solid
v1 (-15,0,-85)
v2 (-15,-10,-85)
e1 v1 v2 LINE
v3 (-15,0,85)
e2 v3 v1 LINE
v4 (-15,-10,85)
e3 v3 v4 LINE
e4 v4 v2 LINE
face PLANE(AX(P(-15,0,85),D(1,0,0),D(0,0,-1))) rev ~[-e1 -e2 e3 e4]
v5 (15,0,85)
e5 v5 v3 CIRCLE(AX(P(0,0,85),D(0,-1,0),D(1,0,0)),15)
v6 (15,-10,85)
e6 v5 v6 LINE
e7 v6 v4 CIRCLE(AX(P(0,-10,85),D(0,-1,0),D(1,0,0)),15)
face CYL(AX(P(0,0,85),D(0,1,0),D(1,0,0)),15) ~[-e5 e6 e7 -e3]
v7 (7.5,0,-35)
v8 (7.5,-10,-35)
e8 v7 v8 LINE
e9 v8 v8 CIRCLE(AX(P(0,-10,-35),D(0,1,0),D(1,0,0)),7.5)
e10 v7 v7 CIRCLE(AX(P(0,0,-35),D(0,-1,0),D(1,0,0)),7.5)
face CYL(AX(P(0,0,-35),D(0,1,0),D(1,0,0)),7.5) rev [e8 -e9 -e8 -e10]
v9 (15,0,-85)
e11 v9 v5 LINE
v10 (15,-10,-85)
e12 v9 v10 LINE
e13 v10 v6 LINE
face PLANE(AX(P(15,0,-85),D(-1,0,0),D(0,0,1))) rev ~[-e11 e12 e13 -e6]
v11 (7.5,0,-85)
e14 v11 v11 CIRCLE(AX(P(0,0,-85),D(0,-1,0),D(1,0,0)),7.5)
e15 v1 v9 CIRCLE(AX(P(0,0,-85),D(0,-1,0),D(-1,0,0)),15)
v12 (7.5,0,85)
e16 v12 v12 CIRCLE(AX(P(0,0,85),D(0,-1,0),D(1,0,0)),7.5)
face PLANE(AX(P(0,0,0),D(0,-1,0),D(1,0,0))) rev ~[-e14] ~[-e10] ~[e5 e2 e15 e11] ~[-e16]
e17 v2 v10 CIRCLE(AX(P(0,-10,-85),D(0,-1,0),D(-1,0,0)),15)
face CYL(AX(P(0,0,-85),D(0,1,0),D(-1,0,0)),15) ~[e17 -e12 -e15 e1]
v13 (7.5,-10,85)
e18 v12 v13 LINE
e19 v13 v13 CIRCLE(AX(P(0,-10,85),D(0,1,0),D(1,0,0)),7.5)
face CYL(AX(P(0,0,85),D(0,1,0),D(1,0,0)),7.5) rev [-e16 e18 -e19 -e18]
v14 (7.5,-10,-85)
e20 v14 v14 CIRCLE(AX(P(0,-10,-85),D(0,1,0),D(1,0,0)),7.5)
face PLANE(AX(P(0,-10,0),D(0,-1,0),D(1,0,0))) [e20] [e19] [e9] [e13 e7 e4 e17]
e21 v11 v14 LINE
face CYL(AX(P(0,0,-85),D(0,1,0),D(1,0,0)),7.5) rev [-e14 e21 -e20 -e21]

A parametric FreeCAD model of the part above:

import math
import FreeCAD as App
import Part
import Sketcher
from FreeCAD import Vector

doc = App.newDocument("Part")
params = doc.addObject("Spreadsheet::Sheet", "Params")
for row, (alias, value) in enumerate([
    ("sketch1_radius", "15 mm"),
    ("sketch1_height", "170 mm"),
    ("pad1_length", "10 mm"),
    ("sketch2_diameter", "15 mm"),
    ("pocket1_length", "51 mm"),
], start=1):
    params.set(f"A{row}", alias)
    params.set(f"B{row}", "=" + value)
    params.setAlias(f"B{row}", alias)

body = doc.addObject("PartDesign::Body", "Body")

# Sketch on XZ plane
sketch1 = body.newObject("Sketcher::SketchObject", "Sketch")
sketch1.AttachmentSupport = (doc.getObject("XZ_Plane"), [""])
sketch1.MapMode = "FlatFace"
sketch1.addGeometry([
    Part.LineSegment(Vector(15, -85, 0), Vector(15, 85, 0)),
    Part.ArcOfCircle(Part.Circle(Vector(0, 85, 0), Vector(0, 0, 1), 15), math.radians(0), math.radians(180)),
    Part.LineSegment(Vector(-15, 85, 0), Vector(-15, -85, 0)),
    Part.ArcOfCircle(Part.Circle(Vector(0, -85, 0), Vector(0, 0, 1), 15), math.radians(180), math.radians(360)),
], False)
sketch1.addConstraint([
    Sketcher.Constraint("Tangent", 0, 2, 1, 1),
    Sketcher.Constraint("Tangent", 1, 2, 2, 1),
    Sketcher.Constraint("Tangent", 2, 2, 3, 1),
    Sketcher.Constraint("Tangent", 3, 2, 0, 1),
    Sketcher.Constraint("Vertical", 0),
    Sketcher.Constraint("Vertical", 2),
    Sketcher.Constraint("Symmetric", 1, 3, 3, 3, -1, 1),
    Sketcher.Constraint("Radius", 1, 15.0),
    Sketcher.Constraint("DistanceY", 0, 1, 0, 2, 170.0),
])
sketch1.setExpression("Constraints[7]", "Params.sketch1_radius")
sketch1.setExpression("Constraints[8]", "Params.sketch1_height")
pad1 = body.newObject("PartDesign::Pad", "Pad")
pad1.Profile = sketch1
pad1.setExpression("Length", "Params.pad1_length")

# Sketch on XZ plane
sketch2 = body.newObject("Sketcher::SketchObject", "Sketch001")
sketch2.AttachmentSupport = (doc.getObject("XZ_Plane"), [""])
sketch2.MapMode = "FlatFace"
sketch2.addGeometry([
    Part.Circle(Vector(0, 85, 0), Vector(0, 0, 1), 7.5),
    Part.Circle(Vector(0, -35, 0), Vector(0, 0, 1), 7.5),
    Part.Circle(Vector(0, -85, 0), Vector(0, 0, 1), 7.5),
], False)
sketch2.addConstraint([
    Sketcher.Constraint("Equal", 0, 1),
    Sketcher.Constraint("Equal", 1, 2),
    Sketcher.Constraint("Symmetric", 0, 3, 2, 3, -1, 1),
    Sketcher.Constraint("PointOnObject", 0, 3, -2),
    Sketcher.Constraint("PointOnObject", 1, 3, -2),
    Sketcher.Constraint("Diameter", 0, 15.0),
    Sketcher.Constraint("DistanceY", -1, 1, 0, 3, 85.0),
    Sketcher.Constraint("DistanceY", 1, 3, -1, 1, 35.0),
])
sketch2.setExpression("Constraints[5]", "Params.sketch2_diameter")
pocket1 = body.newObject("PartDesign::Pocket", "Pocket")
pocket1.Profile = sketch2
pocket1.setExpression("Length", "Params.pocket1_length")
pocket1.Reversed = True

doc.recompute()
